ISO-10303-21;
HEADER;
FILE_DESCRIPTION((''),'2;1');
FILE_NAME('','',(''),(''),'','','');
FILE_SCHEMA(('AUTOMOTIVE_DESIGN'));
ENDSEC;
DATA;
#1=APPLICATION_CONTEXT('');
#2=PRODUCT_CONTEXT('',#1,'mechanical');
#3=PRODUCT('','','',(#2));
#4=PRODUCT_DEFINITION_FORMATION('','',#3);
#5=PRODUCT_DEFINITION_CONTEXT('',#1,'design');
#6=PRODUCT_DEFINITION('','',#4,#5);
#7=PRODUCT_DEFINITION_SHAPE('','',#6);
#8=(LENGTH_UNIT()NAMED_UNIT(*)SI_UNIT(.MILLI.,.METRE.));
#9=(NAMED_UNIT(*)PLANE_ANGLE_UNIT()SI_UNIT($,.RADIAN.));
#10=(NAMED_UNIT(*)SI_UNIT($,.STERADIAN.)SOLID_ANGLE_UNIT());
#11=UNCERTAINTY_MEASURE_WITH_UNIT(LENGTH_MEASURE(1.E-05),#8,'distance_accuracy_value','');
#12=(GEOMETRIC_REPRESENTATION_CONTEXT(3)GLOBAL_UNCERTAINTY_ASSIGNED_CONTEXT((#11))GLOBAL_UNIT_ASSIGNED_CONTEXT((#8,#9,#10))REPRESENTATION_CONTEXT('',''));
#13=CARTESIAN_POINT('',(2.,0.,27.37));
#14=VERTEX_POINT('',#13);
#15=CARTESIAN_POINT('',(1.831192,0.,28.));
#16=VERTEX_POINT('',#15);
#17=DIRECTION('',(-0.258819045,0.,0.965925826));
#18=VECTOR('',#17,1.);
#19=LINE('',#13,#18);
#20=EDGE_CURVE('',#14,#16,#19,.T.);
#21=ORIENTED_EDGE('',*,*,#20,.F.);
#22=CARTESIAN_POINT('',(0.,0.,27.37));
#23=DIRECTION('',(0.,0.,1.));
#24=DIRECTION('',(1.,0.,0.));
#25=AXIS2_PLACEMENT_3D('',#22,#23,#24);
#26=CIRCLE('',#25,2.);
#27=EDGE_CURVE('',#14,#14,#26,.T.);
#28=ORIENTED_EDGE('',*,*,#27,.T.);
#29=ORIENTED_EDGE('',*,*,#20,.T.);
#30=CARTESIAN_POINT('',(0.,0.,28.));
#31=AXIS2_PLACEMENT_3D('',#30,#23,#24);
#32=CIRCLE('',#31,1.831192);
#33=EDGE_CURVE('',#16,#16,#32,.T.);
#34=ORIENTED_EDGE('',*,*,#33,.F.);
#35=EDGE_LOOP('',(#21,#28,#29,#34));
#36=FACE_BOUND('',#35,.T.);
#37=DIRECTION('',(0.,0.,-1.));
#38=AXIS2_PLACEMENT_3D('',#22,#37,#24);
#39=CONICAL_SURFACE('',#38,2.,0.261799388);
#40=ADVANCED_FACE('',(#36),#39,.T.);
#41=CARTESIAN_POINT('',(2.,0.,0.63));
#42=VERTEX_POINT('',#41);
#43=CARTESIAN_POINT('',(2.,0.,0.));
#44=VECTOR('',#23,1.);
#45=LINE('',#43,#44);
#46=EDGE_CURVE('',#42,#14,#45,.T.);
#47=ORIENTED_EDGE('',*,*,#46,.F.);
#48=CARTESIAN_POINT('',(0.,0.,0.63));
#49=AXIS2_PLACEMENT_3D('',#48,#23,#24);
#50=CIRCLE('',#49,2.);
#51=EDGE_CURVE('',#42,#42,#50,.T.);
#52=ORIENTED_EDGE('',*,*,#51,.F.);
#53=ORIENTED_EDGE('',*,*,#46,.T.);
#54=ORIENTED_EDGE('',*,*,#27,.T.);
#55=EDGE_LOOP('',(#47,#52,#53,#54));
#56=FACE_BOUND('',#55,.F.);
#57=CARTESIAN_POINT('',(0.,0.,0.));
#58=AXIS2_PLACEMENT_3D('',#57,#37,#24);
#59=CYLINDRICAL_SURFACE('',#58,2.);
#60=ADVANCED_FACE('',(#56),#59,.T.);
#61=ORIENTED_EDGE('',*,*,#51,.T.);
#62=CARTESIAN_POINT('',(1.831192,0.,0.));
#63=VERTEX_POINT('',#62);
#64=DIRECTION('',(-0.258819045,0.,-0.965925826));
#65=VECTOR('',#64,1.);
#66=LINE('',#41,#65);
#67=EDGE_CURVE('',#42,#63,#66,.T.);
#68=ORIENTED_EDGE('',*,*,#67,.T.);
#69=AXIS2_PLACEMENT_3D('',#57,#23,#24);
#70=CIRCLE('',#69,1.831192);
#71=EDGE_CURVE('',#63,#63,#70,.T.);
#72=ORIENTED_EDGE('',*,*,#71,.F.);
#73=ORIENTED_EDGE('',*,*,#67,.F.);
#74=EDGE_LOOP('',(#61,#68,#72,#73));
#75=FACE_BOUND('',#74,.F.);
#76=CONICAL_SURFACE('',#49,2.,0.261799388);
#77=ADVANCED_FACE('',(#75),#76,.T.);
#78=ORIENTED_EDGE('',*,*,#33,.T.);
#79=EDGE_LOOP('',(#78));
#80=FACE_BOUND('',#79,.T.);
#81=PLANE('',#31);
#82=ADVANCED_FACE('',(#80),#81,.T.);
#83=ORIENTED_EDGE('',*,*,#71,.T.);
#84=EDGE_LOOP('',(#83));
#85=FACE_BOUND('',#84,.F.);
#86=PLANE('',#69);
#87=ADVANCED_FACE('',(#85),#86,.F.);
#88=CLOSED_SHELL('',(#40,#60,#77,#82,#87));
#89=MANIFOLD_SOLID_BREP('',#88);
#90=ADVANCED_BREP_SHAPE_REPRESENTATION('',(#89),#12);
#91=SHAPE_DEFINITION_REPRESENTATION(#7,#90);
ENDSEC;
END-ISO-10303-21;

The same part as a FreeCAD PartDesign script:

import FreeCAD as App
import Part
import Sketcher

V = App.Vector


def edges_at(feature, points):
    """Names of the edges that pass closest to the given points."""
    edges = feature.Shape.Edges
    near = lambda p: min(range(len(edges)), key=lambda i: edges[i].distToShape(Part.Vertex(*p))[0])
    return sorted({f"Edge{near(p) + 1}" for p in points})

doc = App.newDocument("Part")
body = doc.addObject("PartDesign::Body", "Body")

# Sketch on XY plane
sketch1 = doc.addObject("Sketcher::SketchObject", "Sketch")
body.addObject(sketch1)
sketch1.AttachmentSupport = (doc.XY_Plane, [""])
sketch1.MapMode = "FlatFace"
sketch1.addGeometry(Part.Circle(V(0, 0, 0), V(0, 0, 1), 2), False)
sketch1.addConstraint([
    Sketcher.Constraint("Coincident", 0, 3, -1, 1),
    Sketcher.Constraint("Diameter", 0, 4.0),
])
pad1 = doc.addObject("PartDesign::Pad", "Pad")
body.addObject(pad1)
pad1.Profile = sketch1
pad1.Length = 28
doc.recompute()

chamfer = doc.addObject("PartDesign::Chamfer", "Chamfer")
body.addObject(chamfer)
chamfer.Base = (pad1, edges_at(pad1, [(-2, 0, 28), (-2, 0, 0)]))
chamfer.ChamferType = "Distance and Angle"
chamfer.Size = 0.63
chamfer.Angle = 15

doc.recompute()
